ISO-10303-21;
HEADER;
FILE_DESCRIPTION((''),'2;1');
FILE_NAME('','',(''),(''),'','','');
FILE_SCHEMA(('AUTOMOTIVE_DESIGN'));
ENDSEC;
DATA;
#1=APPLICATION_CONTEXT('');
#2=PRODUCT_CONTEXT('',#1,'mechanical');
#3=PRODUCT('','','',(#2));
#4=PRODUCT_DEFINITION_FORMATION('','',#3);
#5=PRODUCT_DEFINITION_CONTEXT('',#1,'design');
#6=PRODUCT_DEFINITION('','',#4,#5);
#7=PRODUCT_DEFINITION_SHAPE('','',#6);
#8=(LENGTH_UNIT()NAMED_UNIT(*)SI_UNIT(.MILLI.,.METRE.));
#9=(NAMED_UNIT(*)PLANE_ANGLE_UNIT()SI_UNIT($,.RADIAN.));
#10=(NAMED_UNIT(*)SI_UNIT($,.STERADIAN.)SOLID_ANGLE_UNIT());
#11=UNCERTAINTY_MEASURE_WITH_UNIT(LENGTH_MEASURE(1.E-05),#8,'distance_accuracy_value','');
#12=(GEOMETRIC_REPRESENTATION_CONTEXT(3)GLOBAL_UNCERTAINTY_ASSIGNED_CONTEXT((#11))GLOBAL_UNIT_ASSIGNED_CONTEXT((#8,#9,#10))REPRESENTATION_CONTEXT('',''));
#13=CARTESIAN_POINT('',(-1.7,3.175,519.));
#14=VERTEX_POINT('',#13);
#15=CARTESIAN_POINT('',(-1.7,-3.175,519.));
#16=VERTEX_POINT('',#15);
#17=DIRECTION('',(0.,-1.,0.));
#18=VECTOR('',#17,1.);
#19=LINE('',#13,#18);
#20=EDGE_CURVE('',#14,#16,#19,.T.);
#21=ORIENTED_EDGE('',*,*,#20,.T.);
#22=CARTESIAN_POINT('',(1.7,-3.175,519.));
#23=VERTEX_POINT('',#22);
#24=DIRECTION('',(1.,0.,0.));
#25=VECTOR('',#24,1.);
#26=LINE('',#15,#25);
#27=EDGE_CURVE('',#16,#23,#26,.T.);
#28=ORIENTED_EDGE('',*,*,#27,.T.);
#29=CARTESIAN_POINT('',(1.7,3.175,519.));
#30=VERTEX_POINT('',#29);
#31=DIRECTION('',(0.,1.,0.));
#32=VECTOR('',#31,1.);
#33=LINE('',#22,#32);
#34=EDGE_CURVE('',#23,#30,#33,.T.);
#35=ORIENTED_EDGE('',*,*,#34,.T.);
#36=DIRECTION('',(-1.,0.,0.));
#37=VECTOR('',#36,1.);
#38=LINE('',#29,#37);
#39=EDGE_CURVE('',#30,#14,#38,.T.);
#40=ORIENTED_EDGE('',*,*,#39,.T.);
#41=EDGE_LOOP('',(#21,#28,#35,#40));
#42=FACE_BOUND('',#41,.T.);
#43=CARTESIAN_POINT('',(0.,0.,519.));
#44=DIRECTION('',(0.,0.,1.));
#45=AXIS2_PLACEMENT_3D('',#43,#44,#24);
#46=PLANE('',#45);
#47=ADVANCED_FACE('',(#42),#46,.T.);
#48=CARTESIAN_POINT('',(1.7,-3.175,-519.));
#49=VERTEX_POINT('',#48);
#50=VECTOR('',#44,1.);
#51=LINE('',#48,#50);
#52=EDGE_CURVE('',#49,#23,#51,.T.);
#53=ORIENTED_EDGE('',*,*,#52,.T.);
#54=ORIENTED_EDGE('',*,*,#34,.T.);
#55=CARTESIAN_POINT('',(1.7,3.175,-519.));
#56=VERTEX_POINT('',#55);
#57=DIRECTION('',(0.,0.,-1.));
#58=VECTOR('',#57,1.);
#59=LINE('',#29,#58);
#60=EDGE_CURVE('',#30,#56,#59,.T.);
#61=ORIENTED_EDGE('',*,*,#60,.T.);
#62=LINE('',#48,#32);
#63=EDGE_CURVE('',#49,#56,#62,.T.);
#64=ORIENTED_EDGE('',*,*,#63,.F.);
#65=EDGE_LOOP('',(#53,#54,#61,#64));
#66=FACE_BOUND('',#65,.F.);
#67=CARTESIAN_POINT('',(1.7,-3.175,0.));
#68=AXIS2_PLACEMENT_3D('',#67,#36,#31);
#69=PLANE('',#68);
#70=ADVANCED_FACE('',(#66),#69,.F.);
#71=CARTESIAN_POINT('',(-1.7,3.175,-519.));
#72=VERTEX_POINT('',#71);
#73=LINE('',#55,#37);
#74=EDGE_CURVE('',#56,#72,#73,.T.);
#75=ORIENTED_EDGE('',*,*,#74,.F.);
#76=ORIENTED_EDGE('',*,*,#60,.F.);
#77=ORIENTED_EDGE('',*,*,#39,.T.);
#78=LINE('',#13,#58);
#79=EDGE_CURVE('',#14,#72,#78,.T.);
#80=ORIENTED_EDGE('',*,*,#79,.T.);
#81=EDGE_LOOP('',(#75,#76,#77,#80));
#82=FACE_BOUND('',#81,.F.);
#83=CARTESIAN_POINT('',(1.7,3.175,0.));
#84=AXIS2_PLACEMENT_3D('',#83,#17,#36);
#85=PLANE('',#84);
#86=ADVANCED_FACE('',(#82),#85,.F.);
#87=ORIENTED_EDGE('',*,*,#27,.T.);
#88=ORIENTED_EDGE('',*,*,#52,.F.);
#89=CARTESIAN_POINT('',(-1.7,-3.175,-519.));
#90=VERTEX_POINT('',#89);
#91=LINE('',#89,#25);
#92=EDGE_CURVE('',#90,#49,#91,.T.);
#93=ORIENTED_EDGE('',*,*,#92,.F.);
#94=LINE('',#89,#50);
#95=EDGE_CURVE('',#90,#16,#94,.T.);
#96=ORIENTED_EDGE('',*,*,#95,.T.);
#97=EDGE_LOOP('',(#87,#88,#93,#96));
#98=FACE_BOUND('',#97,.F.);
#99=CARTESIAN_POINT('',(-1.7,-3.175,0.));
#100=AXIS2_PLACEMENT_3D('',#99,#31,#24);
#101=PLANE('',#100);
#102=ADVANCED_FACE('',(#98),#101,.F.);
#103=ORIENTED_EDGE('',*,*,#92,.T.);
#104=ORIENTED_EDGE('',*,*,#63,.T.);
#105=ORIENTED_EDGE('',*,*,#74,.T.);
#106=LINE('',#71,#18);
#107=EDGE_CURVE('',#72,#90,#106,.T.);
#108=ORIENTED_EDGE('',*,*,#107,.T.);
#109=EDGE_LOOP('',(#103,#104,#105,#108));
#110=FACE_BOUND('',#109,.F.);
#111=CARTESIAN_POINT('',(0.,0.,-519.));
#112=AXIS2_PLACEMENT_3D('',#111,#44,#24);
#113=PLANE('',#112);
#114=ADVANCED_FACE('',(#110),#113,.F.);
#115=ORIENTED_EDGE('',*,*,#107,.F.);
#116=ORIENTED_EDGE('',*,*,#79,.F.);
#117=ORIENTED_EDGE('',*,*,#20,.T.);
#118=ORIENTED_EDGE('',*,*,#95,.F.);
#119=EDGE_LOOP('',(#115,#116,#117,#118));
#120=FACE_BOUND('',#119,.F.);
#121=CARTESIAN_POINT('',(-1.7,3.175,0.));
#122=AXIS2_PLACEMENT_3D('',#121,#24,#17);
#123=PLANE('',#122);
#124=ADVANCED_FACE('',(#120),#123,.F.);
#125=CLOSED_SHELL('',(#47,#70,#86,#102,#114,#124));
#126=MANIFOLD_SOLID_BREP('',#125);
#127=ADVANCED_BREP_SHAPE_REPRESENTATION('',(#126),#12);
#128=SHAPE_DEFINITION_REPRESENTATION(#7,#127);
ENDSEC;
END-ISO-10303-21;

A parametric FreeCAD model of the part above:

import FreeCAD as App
import Part
import Sketcher

V = App.Vector
Q = App.Units.Quantity

doc = App.newDocument("Part")
body = doc.addObject("PartDesign::Body", "Body")

sketch1 = doc.addObject("Sketcher::SketchObject", "Sketch")
body.addObject(sketch1)
sketch1.AttachmentSupport = (doc.XY_Plane, [""])
sketch1.MapMode = "FlatFace"
sketch1.addGeometry(Part.LineSegment(V(-1.7, 3.2, 0), V(-1.7, -3.2, 0)), False)
sketch1.addGeometry(Part.LineSegment(V(-1.7, -3.2, 0), V(1.7, -3.2, 0)), False)
sketch1.addGeometry(Part.LineSegment(V(1.7, -3.2, 0), V(1.7, 3.2, 0)), False)
sketch1.addGeometry(Part.LineSegment(V(1.7, 3.2, 0), V(-1.7, 3.2, 0)), False)
sketch1.addConstraint(Sketcher.Constraint("Coincident", 0, 2, 1, 1))
sketch1.addConstraint(Sketcher.Constraint("Coincident", 1, 2, 2, 1))
sketch1.addConstraint(Sketcher.Constraint("Coincident", 2, 2, 3, 1))
sketch1.addConstraint(Sketcher.Constraint("Coincident", 3, 2, 0, 1))
sketch1.addConstraint(Sketcher.Constraint("Vertical", 0))
sketch1.addConstraint(Sketcher.Constraint("Horizontal", 1))
sketch1.addConstraint(Sketcher.Constraint("Vertical", 2))
sketch1.addConstraint(Sketcher.Constraint("Horizontal", 3))
sketch1.addConstraint(Sketcher.Constraint("Symmetric", 0, 2, 2, 2, -1, 1))
sketch1.addConstraint(Sketcher.Constraint("DistanceX", 1, 1, 1, 2, Q("3.4 mm")))
sketch1.addConstraint(Sketcher.Constraint("DistanceY", 0, 2, 0, 1, Q("6.35 mm")))
pad1 = doc.addObject("PartDesign::Pad", "Pad")
body.addObject(pad1)
pad1.Profile = sketch1
pad1.Length = 1038
pad1.Midplane = True

doc.recompute()
